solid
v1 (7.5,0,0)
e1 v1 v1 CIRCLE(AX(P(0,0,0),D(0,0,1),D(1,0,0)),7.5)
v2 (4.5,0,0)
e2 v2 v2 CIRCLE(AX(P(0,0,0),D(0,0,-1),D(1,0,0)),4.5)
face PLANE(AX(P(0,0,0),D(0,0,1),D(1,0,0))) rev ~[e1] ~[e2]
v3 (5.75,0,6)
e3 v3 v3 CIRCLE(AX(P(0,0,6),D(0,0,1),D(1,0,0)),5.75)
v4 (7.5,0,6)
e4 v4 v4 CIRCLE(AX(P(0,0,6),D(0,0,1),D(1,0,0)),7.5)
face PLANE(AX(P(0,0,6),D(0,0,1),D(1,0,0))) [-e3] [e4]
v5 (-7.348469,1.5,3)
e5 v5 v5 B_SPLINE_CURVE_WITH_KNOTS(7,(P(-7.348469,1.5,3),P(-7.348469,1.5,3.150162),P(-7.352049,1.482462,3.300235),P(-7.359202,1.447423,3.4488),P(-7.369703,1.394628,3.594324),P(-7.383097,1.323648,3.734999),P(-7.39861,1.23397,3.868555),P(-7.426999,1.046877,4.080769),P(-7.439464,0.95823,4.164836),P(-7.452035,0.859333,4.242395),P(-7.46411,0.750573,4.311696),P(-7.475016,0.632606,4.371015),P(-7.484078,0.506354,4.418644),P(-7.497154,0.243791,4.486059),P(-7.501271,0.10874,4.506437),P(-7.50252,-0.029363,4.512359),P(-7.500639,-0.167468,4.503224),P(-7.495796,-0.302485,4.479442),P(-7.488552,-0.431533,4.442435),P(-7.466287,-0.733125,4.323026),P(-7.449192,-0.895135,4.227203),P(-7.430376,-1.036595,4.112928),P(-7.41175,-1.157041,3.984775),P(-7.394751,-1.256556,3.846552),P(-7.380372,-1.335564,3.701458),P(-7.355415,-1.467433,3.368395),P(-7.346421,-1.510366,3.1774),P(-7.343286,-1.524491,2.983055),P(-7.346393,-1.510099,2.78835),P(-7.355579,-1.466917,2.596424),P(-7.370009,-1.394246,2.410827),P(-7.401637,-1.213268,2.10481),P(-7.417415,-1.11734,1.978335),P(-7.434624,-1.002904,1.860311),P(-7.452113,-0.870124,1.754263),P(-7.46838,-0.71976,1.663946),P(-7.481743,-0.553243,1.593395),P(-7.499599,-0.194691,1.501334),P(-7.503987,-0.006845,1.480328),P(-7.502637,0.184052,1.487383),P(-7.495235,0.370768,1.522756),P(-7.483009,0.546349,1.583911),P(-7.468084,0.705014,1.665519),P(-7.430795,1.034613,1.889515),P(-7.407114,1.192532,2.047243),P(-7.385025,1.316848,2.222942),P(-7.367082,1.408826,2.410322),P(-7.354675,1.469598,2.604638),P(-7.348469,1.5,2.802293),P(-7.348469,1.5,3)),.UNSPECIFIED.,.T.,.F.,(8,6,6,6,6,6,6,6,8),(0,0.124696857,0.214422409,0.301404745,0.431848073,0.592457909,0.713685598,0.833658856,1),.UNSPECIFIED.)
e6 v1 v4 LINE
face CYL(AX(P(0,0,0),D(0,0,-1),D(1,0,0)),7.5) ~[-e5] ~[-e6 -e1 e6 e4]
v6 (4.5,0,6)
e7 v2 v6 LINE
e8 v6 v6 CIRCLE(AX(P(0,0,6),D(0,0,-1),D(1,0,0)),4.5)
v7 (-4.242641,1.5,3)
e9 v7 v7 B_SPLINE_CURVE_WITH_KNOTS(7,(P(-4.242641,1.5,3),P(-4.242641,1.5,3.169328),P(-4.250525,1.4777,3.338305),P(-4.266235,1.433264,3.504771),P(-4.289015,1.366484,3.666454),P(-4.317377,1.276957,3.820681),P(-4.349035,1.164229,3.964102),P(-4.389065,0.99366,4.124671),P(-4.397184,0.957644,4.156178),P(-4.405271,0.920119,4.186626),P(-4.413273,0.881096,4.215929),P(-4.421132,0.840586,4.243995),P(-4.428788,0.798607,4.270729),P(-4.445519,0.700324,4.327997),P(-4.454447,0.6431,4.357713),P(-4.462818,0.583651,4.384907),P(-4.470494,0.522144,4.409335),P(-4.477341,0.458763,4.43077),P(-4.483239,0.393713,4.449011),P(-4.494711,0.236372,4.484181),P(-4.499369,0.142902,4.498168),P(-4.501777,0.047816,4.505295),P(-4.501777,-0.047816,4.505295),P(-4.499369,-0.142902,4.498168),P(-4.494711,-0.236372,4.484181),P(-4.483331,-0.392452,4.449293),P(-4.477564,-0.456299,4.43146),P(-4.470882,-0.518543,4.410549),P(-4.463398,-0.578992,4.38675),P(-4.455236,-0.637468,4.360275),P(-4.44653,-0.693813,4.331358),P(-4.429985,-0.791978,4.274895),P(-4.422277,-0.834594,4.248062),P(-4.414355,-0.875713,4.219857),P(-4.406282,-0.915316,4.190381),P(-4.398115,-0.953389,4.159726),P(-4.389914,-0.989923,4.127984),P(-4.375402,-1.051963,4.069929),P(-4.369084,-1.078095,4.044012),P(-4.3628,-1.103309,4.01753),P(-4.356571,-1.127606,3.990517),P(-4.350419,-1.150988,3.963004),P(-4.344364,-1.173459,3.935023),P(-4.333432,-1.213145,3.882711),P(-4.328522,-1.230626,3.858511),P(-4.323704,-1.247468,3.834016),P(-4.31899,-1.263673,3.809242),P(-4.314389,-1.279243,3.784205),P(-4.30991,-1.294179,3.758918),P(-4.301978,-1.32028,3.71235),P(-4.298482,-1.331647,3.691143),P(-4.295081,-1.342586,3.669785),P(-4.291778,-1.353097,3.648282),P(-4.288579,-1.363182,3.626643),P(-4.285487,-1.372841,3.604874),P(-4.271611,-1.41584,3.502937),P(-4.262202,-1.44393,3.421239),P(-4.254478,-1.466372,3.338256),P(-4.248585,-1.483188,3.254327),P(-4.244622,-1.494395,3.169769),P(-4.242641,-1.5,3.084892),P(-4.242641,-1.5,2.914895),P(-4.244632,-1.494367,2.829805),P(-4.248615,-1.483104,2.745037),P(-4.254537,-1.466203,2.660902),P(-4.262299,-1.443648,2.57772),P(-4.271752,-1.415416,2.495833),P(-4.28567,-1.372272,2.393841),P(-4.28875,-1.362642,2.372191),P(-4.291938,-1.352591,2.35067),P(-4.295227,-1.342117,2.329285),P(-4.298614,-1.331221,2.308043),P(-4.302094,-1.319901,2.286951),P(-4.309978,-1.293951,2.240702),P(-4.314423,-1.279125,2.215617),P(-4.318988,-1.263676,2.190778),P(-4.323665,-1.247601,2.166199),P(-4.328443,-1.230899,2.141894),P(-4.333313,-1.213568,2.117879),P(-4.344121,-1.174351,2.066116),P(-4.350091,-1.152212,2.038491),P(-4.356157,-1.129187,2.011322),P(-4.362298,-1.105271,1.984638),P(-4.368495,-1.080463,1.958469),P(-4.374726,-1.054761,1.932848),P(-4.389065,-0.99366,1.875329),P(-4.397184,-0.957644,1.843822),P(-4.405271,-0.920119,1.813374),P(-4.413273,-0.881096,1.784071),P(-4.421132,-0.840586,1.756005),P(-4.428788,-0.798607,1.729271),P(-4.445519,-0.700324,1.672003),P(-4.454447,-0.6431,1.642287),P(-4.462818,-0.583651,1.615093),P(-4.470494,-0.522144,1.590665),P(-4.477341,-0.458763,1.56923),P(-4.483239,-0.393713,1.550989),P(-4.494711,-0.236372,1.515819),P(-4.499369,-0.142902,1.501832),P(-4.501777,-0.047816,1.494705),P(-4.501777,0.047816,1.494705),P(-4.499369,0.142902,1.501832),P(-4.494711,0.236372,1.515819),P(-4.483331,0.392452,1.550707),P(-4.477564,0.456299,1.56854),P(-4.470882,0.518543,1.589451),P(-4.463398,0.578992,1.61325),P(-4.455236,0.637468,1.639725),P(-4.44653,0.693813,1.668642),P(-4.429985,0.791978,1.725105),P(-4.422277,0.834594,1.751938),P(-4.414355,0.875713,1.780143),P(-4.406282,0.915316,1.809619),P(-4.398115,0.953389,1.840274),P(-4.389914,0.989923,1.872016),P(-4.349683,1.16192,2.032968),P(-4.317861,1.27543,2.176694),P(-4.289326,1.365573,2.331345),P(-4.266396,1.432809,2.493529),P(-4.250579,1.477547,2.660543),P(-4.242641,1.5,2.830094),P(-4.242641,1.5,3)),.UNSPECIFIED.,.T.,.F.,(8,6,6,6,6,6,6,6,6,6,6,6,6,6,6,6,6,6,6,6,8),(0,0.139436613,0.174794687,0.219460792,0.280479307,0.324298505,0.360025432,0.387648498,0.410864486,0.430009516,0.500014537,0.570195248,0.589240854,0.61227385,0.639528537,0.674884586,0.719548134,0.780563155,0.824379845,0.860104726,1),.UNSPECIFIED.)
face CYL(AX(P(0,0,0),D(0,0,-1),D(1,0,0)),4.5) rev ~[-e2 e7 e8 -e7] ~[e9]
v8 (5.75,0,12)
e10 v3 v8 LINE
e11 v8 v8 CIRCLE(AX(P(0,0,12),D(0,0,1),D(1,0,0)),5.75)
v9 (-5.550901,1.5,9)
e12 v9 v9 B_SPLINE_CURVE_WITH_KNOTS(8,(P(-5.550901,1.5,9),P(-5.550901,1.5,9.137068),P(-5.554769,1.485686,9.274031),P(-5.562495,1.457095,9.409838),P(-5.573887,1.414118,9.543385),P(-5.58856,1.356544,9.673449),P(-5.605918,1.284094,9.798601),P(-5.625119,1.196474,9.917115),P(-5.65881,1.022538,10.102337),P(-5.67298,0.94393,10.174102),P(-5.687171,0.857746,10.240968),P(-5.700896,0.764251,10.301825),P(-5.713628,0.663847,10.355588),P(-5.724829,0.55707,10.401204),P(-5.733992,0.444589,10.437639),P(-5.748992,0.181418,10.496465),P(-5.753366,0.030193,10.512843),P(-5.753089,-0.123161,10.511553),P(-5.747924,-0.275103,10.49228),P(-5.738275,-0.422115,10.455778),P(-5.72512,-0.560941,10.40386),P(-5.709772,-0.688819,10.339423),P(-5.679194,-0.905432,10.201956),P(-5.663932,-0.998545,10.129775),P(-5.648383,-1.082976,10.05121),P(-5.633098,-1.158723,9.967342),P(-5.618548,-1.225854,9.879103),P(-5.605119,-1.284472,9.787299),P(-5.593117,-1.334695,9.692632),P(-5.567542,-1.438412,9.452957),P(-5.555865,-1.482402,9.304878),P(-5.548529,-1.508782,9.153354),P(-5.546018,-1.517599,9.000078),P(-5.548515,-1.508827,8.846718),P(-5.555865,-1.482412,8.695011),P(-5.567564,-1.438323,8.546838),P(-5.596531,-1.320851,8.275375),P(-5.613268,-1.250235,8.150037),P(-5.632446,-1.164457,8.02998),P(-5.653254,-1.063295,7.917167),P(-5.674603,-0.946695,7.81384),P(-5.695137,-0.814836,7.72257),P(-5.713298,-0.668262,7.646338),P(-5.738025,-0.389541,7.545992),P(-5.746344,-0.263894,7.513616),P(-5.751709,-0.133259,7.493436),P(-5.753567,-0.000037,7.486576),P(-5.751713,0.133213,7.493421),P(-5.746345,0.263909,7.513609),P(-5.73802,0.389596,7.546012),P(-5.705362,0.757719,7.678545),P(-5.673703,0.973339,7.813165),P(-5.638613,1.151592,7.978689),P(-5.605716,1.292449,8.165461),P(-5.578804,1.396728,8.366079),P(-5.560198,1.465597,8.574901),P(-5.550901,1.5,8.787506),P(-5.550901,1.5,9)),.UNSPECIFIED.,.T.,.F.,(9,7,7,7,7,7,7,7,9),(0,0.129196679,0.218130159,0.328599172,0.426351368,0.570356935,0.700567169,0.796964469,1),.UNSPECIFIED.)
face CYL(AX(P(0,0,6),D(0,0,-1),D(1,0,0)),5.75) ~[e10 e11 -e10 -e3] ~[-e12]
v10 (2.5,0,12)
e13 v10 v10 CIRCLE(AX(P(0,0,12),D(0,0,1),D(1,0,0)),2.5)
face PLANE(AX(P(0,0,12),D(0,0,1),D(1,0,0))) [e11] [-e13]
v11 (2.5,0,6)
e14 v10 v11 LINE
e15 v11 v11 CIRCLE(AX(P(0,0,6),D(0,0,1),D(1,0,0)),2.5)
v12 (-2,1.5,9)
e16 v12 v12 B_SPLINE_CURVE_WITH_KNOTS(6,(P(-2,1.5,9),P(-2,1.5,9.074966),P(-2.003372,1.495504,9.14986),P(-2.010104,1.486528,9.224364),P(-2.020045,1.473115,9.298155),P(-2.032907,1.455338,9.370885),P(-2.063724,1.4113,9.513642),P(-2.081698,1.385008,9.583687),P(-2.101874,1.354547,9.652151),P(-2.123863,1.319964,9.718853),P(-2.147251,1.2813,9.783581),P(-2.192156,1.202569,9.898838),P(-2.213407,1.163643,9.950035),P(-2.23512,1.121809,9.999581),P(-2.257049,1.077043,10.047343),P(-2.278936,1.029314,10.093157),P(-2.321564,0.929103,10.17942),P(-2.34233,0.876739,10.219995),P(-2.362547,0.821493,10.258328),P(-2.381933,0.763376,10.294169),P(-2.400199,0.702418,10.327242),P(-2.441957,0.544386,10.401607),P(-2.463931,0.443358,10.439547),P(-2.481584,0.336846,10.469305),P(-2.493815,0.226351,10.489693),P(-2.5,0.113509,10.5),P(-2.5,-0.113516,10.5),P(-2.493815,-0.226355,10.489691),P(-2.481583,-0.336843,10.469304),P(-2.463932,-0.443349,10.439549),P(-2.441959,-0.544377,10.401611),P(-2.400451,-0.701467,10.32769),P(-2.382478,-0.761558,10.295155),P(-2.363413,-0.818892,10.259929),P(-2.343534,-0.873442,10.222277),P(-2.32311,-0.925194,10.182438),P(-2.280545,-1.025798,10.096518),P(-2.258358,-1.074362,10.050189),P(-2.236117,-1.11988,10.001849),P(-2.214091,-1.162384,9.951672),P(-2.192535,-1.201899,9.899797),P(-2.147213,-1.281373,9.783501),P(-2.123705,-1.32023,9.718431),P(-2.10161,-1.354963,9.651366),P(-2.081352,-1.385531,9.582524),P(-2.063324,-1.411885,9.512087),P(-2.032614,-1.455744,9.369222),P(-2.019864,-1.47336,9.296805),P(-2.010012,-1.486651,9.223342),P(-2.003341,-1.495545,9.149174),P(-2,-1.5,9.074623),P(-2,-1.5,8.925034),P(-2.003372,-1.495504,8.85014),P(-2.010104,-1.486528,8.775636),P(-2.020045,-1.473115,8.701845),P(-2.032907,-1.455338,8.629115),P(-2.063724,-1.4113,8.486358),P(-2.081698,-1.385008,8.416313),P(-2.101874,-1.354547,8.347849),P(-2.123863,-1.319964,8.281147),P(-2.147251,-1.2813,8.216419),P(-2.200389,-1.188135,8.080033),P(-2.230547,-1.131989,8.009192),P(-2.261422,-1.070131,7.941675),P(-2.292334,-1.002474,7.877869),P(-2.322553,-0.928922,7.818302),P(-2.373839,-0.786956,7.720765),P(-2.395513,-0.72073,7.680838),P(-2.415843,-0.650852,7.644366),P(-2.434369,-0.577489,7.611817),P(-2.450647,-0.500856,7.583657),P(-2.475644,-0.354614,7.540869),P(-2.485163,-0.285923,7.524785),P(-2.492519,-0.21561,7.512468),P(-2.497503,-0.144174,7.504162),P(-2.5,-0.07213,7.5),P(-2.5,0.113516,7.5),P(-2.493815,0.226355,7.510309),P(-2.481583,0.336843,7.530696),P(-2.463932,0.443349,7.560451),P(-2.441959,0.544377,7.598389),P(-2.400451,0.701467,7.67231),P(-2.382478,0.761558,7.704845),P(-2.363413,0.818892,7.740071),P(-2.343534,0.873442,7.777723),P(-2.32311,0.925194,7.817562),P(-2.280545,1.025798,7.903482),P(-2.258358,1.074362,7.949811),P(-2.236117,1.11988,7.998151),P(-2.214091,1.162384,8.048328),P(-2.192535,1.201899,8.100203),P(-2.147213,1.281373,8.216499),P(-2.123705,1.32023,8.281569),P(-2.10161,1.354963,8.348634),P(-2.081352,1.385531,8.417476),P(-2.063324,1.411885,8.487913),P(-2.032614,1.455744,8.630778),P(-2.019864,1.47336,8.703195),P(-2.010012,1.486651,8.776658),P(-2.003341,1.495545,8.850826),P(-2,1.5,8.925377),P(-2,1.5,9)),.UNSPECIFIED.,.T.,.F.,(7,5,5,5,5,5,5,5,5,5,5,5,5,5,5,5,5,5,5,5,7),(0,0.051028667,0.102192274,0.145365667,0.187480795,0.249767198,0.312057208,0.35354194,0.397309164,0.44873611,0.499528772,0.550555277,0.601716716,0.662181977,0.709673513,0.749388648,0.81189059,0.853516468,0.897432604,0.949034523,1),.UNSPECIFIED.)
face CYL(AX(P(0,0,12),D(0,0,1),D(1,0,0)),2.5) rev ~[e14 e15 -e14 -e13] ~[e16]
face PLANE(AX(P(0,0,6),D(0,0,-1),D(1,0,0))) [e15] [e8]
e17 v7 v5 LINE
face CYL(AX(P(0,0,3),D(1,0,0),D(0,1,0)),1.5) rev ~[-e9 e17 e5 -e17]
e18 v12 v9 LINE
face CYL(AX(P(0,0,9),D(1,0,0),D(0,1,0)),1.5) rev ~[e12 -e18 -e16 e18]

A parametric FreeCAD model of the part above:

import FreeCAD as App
import Part
import Sketcher
from FreeCAD import Vector

doc = App.newDocument("Part")
body = doc.addObject("PartDesign::Body", "Body")

# Sketch on XY plane
sketch1 = body.newObject("Sketcher::SketchObject", "Sketch")
sketch1.AttachmentSupport = (doc.getObject("XY_Plane"), [""])
sketch1.MapMode = "FlatFace"
sketch1.addGeometry(Part.Circle(Vector(0, 0, 0), Vector(0, 0, 1), 8), False)
sketch1.addConstraint([
    Sketcher.Constraint("Coincident", 0, 3, -1, 1),
    Sketcher.Constraint("Diameter", 0, 15.0),
])
pad1 = body.newObject("PartDesign::Pad", "Pad")
pad1.Profile = sketch1
pad1.Length = 6

# Sketch on XY plane
sketch2 = body.newObject("Sketcher::SketchObject", "Sketch001")
sketch2.AttachmentSupport = (doc.getObject("XY_Plane"), [""])
sketch2.MapMode = "FlatFace"
sketch2.AttachmentOffset = App.Placement(Vector(0, 0, 6), App.Rotation())
sketch2.addGeometry(Part.Circle(Vector(0, 0, 0), Vector(0, 0, 1), 6), False)
sketch2.addConstraint([
    Sketcher.Constraint("Coincident", 0, 3, -1, 1),
    Sketcher.Constraint("Diameter", 0, 11.5),
])
pad2 = body.newObject("PartDesign::Pad", "Pad001")
pad2.Profile = sketch2
pad2.Length = 6

# Sketch on XY plane
sketch3 = body.newObject("Sketcher::SketchObject", "Sketch002")
sketch3.AttachmentSupport = (doc.getObject("XY_Plane"), [""])
sketch3.MapMode = "FlatFace"
sketch3.AttachmentOffset = App.Placement(Vector(0, 0, 12), App.Rotation())
sketch3.addGeometry(Part.Circle(Vector(0, 0, 0), Vector(0, 0, 1), 2.5), False)
sketch3.addConstraint([
    Sketcher.Constraint("Coincident", 0, 3, -1, 1),
    Sketcher.Constraint("Diameter", 0, 5.0),
])
pocket1 = body.newObject("PartDesign::Pocket", "Pocket")
pocket1.Profile = sketch3
pocket1.Length = 6

# Sketch on XY plane
sketch4 = body.newObject("Sketcher::SketchObject", "Sketch003")
sketch4.AttachmentSupport = (doc.getObject("XY_Plane"), [""])
sketch4.MapMode = "FlatFace"
sketch4.addGeometry(Part.Circle(Vector(0, 0, 0), Vector(0, 0, 1), 4.5), False)
sketch4.addConstraint([
    Sketcher.Constraint("Coincident", 0, 3, -1, 1),
    Sketcher.Constraint("Diameter", 0, 9.0),
])
pocket2 = body.newObject("PartDesign::Pocket", "Pocket001")
pocket2.Profile = sketch4
pocket2.Length = 6
pocket2.Reversed = True

# Sketch on YZ plane
sketch5 = body.newObject("Sketcher::SketchObject", "Sketch004")
sketch5.AttachmentSupport = (doc.getObject("YZ_Plane"), [""])
sketch5.MapMode = "FlatFace"
sketch5.addGeometry([
    Part.Circle(Vector(0, 3, 0), Vector(0, 0, 1), 1.5),
    Part.Circle(Vector(0, 9, 0), Vector(0, 0, 1), 1.5),
], False)
sketch5.addConstraint([
    Sketcher.Constraint("Equal", 0, 1),
    Sketcher.Constraint("PointOnObject", 0, 3, -2),
    Sketcher.Constraint("PointOnObject", 1, 3, -2),
    Sketcher.Constraint("Diameter", 0, 3.0),
    Sketcher.Constraint("DistanceY", -1, 1, 0, 3, 3.0),
    Sketcher.Constraint("DistanceY", -1, 1, 1, 3, 9.0),
])
pocket3 = body.newObject("PartDesign::Pocket", "Pocket002")
pocket3.Profile = sketch5
pocket3.Length = 25

doc.recompute()
